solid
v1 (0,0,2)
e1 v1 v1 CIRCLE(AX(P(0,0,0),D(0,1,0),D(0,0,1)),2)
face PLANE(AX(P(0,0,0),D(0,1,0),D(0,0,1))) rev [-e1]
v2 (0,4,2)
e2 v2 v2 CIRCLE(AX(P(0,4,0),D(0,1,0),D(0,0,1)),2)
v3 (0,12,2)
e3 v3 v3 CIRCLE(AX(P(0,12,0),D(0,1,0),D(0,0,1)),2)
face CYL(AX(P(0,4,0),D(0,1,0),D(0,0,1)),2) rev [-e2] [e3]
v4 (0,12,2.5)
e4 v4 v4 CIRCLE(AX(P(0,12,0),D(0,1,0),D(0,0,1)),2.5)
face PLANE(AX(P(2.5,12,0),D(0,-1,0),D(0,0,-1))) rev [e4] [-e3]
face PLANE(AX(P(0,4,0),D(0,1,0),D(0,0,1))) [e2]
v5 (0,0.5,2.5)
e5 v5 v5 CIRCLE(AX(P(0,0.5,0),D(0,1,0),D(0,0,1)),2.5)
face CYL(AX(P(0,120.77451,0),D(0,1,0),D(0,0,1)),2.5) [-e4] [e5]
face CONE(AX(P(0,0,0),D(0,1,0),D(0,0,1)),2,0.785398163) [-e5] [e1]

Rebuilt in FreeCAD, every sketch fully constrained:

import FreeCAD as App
import Part
import Sketcher
from FreeCAD import Vector
Q = App.Units.Quantity

doc = App.newDocument("Part")
params = doc.addObject("Spreadsheet::Sheet", "Params")
for row, (alias, value) in enumerate([
    ("sketch1_width", "2 mm"),
    ("sketch1_height", "12 mm"),
    ("sketch1_width2", "2.5 mm"),
    ("revolution_angle", "360 deg"),
    ("sketch2_diameter", "4 mm"),
    ("pocket1_length", "8 mm"),
], start=1):
    params.set(f"A{row}", alias)
    params.set(f"B{row}", "=" + value)
    params.setAlias(f"B{row}", alias)

body = doc.addObject("PartDesign::Body", "Body")

sketch1 = body.newObject("Sketcher::SketchObject", "Sketch")
sketch1.AttachmentSupport = (doc.getObject("XY_Plane"), [""])
sketch1.MapMode = "FlatFace"
sketch1.addGeometry([
    Part.LineSegment(Vector(0, 0, 0), Vector(2, 0, 0)),
    Part.LineSegment(Vector(2, 0, 0), Vector(2.5, 0.5, 0)),
    Part.LineSegment(Vector(2.5, 0.5, 0), Vector(2.5, 12, 0)),
    Part.LineSegment(Vector(2.5, 12, 0), Vector(0, 12, 0)),
    Part.LineSegment(Vector(0, 12, 0), Vector(0, 0, 0)),
], False)
sketch1.addConstraint([
    Sketcher.Constraint("Coincident", 0, 2, 1, 1),
    Sketcher.Constraint("Coincident", 1, 2, 2, 1),
    Sketcher.Constraint("Coincident", 2, 2, 3, 1),
    Sketcher.Constraint("Coincident", 3, 2, 4, 1),
    Sketcher.Constraint("Coincident", 4, 2, 0, 1),
    Sketcher.Constraint("Horizontal", 0),
    Sketcher.Constraint("Vertical", 2),
    Sketcher.Constraint("Horizontal", 3),
    Sketcher.Constraint("Vertical", 4),
    Sketcher.Constraint("Coincident", 4, 2, -1, 1),
    Sketcher.Constraint("DistanceX", 0, 1, 0, 2, 2.0),
    Sketcher.Constraint("DistanceY", 4, 2, 4, 1, 12.0),
    Sketcher.Constraint("Angle", 1, Q("45 deg")),
    Sketcher.Constraint("DistanceX", 3, 2, 3, 1, 2.5),
])
sketch1.setExpression("Constraints[10]", "Params.sketch1_width")
sketch1.setExpression("Constraints[11]", "Params.sketch1_height")
sketch1.setExpression("Constraints[13]", "Params.sketch1_width2")
revolution = body.newObject("PartDesign::Revolution", "Revolution")
revolution.Profile = sketch1
revolution.ReferenceAxis = (sketch1, ["V_Axis"])
revolution.setExpression("Angle", "Params.revolution_angle")

sketch2 = body.newObject("Sketcher::SketchObject", "Sketch001")
sketch2.AttachmentSupport = (doc.getObject("XZ_Plane"), [""])
sketch2.MapMode = "FlatFace"
sketch2.AttachmentOffset = App.Placement(Vector(0, 0, -12), App.Rotation())
sketch2.addGeometry(Part.Circle(Vector(0, 0, 0), Vector(0, 0, 1), 2), False)
sketch2.addConstraint([
    Sketcher.Constraint("Coincident", 0, 3, -1, 1),
    Sketcher.Constraint("Diameter", 0, 4.0),
])
sketch2.setExpression("Constraints[1]", "Params.sketch2_diameter")
pocket1 = body.newObject("PartDesign::Pocket", "Pocket")
pocket1.Profile = sketch2
pocket1.setExpression("Length", "Params.pocket1_length")
pocket1.Reversed = True

doc.recompute()
